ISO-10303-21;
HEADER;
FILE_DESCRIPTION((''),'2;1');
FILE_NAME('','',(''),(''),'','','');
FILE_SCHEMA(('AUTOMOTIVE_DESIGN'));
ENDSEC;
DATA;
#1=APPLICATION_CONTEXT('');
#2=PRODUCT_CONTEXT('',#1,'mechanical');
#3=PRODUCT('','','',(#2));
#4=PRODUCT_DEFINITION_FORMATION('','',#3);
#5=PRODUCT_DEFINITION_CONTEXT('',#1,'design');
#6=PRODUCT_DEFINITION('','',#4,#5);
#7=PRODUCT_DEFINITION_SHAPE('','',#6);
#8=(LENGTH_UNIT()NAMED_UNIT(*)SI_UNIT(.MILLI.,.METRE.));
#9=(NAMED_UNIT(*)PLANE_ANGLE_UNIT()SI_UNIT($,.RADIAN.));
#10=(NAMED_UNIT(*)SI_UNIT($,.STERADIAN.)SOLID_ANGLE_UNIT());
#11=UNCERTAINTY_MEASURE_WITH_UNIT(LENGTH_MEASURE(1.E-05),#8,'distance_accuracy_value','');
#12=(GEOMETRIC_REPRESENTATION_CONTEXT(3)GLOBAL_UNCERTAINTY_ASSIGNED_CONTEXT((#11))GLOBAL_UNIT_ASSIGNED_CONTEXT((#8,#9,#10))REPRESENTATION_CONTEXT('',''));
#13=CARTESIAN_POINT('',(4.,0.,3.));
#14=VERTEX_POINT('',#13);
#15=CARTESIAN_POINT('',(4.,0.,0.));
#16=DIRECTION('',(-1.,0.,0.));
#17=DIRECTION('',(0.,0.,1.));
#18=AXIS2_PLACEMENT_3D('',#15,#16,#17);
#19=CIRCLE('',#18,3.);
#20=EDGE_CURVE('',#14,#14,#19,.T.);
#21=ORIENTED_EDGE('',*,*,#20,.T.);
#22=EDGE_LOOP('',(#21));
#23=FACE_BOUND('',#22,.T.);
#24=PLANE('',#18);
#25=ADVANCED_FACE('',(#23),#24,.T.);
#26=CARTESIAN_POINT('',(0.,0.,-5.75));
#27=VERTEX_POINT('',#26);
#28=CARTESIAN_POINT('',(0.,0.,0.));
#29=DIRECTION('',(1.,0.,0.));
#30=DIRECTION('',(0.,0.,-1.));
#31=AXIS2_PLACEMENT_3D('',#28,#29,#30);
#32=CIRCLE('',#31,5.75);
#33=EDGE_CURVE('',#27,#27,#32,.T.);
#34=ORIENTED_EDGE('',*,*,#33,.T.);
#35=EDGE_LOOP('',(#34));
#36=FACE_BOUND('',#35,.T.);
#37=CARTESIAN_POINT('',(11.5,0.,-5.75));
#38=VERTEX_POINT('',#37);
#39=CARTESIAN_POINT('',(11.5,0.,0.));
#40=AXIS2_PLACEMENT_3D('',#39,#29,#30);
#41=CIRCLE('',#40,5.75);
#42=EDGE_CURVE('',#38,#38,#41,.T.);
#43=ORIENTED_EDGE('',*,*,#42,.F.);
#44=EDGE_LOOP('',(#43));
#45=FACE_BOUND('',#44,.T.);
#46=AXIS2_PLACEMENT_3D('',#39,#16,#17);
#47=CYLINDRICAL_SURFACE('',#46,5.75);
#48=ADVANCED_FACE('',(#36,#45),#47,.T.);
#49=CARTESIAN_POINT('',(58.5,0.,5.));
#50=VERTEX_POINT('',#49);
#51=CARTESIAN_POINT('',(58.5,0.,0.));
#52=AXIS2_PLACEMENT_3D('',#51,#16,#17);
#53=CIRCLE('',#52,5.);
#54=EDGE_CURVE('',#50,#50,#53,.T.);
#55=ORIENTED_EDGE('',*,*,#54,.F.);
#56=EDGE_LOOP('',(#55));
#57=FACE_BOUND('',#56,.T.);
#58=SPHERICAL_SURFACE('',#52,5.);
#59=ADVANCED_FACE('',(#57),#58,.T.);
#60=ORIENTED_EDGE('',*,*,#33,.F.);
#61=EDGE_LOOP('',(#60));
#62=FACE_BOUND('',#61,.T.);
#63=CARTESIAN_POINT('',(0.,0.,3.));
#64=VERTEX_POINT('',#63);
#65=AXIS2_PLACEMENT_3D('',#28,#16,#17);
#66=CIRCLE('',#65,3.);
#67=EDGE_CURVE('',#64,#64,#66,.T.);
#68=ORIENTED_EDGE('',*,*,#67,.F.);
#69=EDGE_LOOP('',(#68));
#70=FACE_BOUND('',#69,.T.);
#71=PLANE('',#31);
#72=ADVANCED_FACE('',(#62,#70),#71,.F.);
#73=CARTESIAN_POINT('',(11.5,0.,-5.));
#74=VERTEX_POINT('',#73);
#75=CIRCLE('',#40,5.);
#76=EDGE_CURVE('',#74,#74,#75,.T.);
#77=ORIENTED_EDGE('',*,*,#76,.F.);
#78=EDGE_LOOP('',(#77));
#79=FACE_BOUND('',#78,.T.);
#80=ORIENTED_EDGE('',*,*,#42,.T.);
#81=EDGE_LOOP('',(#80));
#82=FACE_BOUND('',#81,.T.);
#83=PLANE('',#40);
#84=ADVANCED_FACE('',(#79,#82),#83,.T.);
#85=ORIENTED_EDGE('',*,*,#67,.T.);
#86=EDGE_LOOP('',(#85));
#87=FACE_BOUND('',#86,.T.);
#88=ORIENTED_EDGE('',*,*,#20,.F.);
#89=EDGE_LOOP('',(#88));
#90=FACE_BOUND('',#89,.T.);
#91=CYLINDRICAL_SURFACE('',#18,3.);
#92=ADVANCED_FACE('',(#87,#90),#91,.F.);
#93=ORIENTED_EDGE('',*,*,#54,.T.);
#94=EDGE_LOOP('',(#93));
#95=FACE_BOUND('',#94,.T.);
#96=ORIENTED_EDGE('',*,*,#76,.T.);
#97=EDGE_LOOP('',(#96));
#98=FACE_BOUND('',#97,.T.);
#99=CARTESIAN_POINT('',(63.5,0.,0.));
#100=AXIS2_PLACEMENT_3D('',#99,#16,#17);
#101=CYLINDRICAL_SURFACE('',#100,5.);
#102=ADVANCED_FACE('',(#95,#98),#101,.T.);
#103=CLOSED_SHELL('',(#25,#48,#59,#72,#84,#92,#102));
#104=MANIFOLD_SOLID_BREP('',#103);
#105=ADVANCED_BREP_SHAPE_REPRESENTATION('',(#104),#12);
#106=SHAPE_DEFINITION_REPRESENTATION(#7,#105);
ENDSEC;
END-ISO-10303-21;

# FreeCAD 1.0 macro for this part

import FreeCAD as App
import Part
import Sketcher
from FreeCAD import Vector


def edges_at(feature, points):
    """Names of the edges that pass closest to the given points."""
    edges = feature.Shape.Edges
    near = lambda p: min(range(len(edges)), key=lambda i: edges[i].distToShape(Part.Vertex(*p))[0])
    return sorted({f"Edge{near(p) + 1}" for p in points})

doc = App.newDocument("Part")
body = doc.addObject("PartDesign::Body", "Body")

sketch1 = doc.addObject("Sketcher::SketchObject", "Sketch")
body.addObject(sketch1)
sketch1.AttachmentSupport = (doc.YZ_Plane, [""])
sketch1.MapMode = "FlatFace"
sketch1.addGeometry(Part.Circle(Vector(0, 0, 0), Vector(0, 0, 1), 6), False)
sketch1.addConstraint([
    Sketcher.Constraint("Coincident", 0, 3, -1, 1),
    Sketcher.Constraint("Diameter", 0, 11.5),
])
pad1 = doc.addObject("PartDesign::Pad", "Pad")
body.addObject(pad1)
pad1.Profile = sketch1
pad1.Length = 11.5

sketch2 = doc.addObject("Sketcher::SketchObject", "Sketch001")
body.addObject(sketch2)
sketch2.AttachmentSupport = (doc.YZ_Plane, [""])
sketch2.MapMode = "FlatFace"
sketch2.addGeometry(Part.Circle(Vector(0, 0, 0), Vector(0, 0, 1), 5), False)
sketch2.addConstraint([
    Sketcher.Constraint("Coincident", 0, 3, -1, 1),
    Sketcher.Constraint("Diameter", 0, 10.0),
])
pad2 = doc.addObject("PartDesign::Pad", "Pad001")
body.addObject(pad2)
pad2.Profile = sketch2
pad2.Length = 63.5
doc.recompute()

fillet = doc.addObject("PartDesign::Fillet", "Fillet")
body.addObject(fillet)
fillet.Base = (pad2, edges_at(pad2, [(63.5, 0, -5)]))
fillet.Radius = 5

sketch3 = doc.addObject("Sketcher::SketchObject", "Sketch002")
body.addObject(sketch3)
sketch3.AttachmentSupport = (doc.YZ_Plane, [""])
sketch3.MapMode = "FlatFace"
sketch3.addGeometry(Part.Circle(Vector(0, 0, 0), Vector(0, 0, 1), 3), False)
sketch3.addConstraint([
    Sketcher.Constraint("Coincident", 0, 3, -1, 1),
    Sketcher.Constraint("Diameter", 0, 6.0),
])
pocket1 = doc.addObject("PartDesign::Pocket", "Pocket")
body.addObject(pocket1)
pocket1.Profile = sketch3
pocket1.Length = 4
pocket1.Reversed = True

doc.recompute()
